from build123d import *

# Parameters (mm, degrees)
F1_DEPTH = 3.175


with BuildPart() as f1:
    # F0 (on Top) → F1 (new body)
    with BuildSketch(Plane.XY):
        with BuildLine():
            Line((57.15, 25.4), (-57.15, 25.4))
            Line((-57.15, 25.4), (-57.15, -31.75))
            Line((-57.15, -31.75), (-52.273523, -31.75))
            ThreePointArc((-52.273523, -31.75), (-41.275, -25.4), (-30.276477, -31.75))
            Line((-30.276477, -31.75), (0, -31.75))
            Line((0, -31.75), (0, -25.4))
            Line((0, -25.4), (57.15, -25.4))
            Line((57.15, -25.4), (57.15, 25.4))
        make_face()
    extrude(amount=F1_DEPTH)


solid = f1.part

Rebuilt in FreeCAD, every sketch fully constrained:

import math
import FreeCAD as App
import Part
import Sketcher
Q = App.Units.Quantity

doc = App.newDocument("Part")
body = doc.addObject("PartDesign::Body", "Body")

# Sketch on XY plane
sketch1 = body.newObject("Sketcher::SketchObject", "Sketch")
sketch1.AttachmentSupport = (doc.getObject("XY_Plane"), [""])
sketch1.MapMode = "FlatFace"
sketch1.addGeometry([
    Part.LineSegment(App.Vector(57.1, 25.4, 0), App.Vector(-57.1, 25.4, 0)),  # 0
    Part.LineSegment(App.Vector(-57.1, 25.4, 0), App.Vector(-57.1, -31.8, 0)),  # 1
    Part.LineSegment(App.Vector(-57.1, -31.8, 0), App.Vector(-52.3, -31.8, 0)),  # 2
    Part.ArcOfCircle(Part.Circle(App.Vector(-41.3, -38.1, 0), App.Vector(0, 0, 1), 12.7), math.radians(30), math.radians(150)),  # 3
    Part.LineSegment(App.Vector(-30.3, -31.8, 0), App.Vector(0, -31.8, 0)),  # 4
    Part.LineSegment(App.Vector(0, -31.8, 0), App.Vector(0, -25.4, 0)),  # 5
    Part.LineSegment(App.Vector(0, -25.4, 0), App.Vector(57.1, -25.4, 0)),  # 6
    Part.LineSegment(App.Vector(57.1, -25.4, 0), App.Vector(57.1, 25.4, 0)),  # 7
], False)
sketch1.addConstraint([
    Sketcher.Constraint("Coincident", 0, 2, 1, 1),
    Sketcher.Constraint("Coincident", 1, 2, 2, 1),
    Sketcher.Constraint("Coincident", 2, 2, 3, 2),
    Sketcher.Constraint("Coincident", 3, 1, 4, 1),
    Sketcher.Constraint("Coincident", 4, 2, 5, 1),
    Sketcher.Constraint("Coincident", 5, 2, 6, 1),
    Sketcher.Constraint("Coincident", 6, 2, 7, 1),
    Sketcher.Constraint("Coincident", 7, 2, 0, 1),
    Sketcher.Constraint("Horizontal", 0),
    Sketcher.Constraint("Vertical", 1),
    Sketcher.Constraint("Horizontal", 2),
    Sketcher.Constraint("Horizontal", 4),
    Sketcher.Constraint("Vertical", 5),
    Sketcher.Constraint("Horizontal", 6),
    Sketcher.Constraint("Vertical", 7),
    Sketcher.Constraint("Symmetric", 0, 2, 6, 2, -1, 1),
    Sketcher.Constraint("PointOnObject", 4, 2, -2),
    Sketcher.Constraint("Horizontal", 2, 2, 3, 1),
    Sketcher.Constraint("Equal", 6, 1),
    Sketcher.Constraint("Radius", 3, Q("0.5 in")),
    Sketcher.Constraint("DistanceY", 7, 1, 7, 2, Q("2 in")),
    Sketcher.Constraint("DistanceX", 0, 2, 0, 1, Q("4.5 in")),
    Sketcher.Constraint("DistanceY", 3, 3, -1, 1, Q("1.5 in")),
    Sketcher.Constraint("DistanceX", 3, 3, -1, 1, Q("1.625 in")),
])
pad1 = body.newObject("PartDesign::Pad", "Pad")
pad1.Profile = sketch1
pad1.Length = Q("0.125 in")

doc.recompute()
